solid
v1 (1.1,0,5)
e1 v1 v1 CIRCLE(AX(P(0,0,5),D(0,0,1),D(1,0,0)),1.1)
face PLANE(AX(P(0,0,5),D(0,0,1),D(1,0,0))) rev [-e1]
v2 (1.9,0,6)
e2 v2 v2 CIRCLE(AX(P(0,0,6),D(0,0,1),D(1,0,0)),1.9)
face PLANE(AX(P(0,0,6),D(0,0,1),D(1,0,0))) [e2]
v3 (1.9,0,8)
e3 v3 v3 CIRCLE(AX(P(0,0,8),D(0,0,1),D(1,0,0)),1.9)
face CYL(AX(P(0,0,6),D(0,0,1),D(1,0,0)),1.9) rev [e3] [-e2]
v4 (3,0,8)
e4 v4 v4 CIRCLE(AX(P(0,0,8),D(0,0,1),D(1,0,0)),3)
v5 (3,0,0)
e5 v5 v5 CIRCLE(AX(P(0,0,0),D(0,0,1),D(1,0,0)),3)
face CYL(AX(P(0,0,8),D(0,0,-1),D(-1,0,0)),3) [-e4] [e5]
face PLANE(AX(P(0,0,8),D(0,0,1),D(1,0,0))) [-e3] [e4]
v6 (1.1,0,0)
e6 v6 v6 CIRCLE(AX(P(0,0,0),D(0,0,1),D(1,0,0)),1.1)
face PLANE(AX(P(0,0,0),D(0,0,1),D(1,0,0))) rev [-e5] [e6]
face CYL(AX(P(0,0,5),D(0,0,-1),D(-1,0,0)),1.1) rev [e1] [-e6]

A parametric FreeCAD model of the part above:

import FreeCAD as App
import Part
import Sketcher
from FreeCAD import Vector
Q = App.Units.Quantity

doc = App.newDocument("Part")
body = doc.addObject("PartDesign::Body", "Body")

# Sketch on XY plane
sketch1 = body.newObject("Sketcher::SketchObject", "Sketch")
sketch1.AttachmentSupport = (doc.getObject("XY_Plane"), [""])
sketch1.MapMode = "FlatFace"
sketch1.addGeometry(Part.Circle(Vector(0, 0, 0), Vector(0, 0, 1), 3), False)
sketch1.addConstraint(Sketcher.Constraint("Coincident", 0, 3, -1, 1))
sketch1.addConstraint(Sketcher.Constraint("Diameter", 0, Q("6 mm")))
pad1 = body.newObject("PartDesign::Pad", "Pad")
pad1.Profile = sketch1
pad1.Length = 8

# Sketch on XY plane
sketch2 = body.newObject("Sketcher::SketchObject", "Sketch001")
sketch2.AttachmentSupport = (doc.getObject("XY_Plane"), [""])
sketch2.MapMode = "FlatFace"
sketch2.AttachmentOffset = App.Placement(Vector(0, 0, 8), App.Rotation())
sketch2.addGeometry(Part.Circle(Vector(0, 0, 0), Vector(0, 0, 1), 1.9), False)
sketch2.addConstraint(Sketcher.Constraint("Coincident", 0, 3, -1, 1))
sketch2.addConstraint(Sketcher.Constraint("Diameter", 0, Q("3.8 mm")))
pocket1 = body.newObject("PartDesign::Pocket", "Pocket")
pocket1.Profile = sketch2
pocket1.Length = 2

# Sketch on XY plane
sketch3 = body.newObject("Sketcher::SketchObject", "Sketch002")
sketch3.AttachmentSupport = (doc.getObject("XY_Plane"), [""])
sketch3.MapMode = "FlatFace"
sketch3.addGeometry(Part.Circle(Vector(0, 0, 0), Vector(0, 0, 1), 1.1), False)
sketch3.addConstraint(Sketcher.Constraint("Coincident", 0, 3, -1, 1))
sketch3.addConstraint(Sketcher.Constraint("Diameter", 0, Q("2.2 mm")))
pocket2 = body.newObject("PartDesign::Pocket", "Pocket001")
pocket2.Profile = sketch3
pocket2.Length = 5
pocket2.Reversed = True

doc.recompute()
